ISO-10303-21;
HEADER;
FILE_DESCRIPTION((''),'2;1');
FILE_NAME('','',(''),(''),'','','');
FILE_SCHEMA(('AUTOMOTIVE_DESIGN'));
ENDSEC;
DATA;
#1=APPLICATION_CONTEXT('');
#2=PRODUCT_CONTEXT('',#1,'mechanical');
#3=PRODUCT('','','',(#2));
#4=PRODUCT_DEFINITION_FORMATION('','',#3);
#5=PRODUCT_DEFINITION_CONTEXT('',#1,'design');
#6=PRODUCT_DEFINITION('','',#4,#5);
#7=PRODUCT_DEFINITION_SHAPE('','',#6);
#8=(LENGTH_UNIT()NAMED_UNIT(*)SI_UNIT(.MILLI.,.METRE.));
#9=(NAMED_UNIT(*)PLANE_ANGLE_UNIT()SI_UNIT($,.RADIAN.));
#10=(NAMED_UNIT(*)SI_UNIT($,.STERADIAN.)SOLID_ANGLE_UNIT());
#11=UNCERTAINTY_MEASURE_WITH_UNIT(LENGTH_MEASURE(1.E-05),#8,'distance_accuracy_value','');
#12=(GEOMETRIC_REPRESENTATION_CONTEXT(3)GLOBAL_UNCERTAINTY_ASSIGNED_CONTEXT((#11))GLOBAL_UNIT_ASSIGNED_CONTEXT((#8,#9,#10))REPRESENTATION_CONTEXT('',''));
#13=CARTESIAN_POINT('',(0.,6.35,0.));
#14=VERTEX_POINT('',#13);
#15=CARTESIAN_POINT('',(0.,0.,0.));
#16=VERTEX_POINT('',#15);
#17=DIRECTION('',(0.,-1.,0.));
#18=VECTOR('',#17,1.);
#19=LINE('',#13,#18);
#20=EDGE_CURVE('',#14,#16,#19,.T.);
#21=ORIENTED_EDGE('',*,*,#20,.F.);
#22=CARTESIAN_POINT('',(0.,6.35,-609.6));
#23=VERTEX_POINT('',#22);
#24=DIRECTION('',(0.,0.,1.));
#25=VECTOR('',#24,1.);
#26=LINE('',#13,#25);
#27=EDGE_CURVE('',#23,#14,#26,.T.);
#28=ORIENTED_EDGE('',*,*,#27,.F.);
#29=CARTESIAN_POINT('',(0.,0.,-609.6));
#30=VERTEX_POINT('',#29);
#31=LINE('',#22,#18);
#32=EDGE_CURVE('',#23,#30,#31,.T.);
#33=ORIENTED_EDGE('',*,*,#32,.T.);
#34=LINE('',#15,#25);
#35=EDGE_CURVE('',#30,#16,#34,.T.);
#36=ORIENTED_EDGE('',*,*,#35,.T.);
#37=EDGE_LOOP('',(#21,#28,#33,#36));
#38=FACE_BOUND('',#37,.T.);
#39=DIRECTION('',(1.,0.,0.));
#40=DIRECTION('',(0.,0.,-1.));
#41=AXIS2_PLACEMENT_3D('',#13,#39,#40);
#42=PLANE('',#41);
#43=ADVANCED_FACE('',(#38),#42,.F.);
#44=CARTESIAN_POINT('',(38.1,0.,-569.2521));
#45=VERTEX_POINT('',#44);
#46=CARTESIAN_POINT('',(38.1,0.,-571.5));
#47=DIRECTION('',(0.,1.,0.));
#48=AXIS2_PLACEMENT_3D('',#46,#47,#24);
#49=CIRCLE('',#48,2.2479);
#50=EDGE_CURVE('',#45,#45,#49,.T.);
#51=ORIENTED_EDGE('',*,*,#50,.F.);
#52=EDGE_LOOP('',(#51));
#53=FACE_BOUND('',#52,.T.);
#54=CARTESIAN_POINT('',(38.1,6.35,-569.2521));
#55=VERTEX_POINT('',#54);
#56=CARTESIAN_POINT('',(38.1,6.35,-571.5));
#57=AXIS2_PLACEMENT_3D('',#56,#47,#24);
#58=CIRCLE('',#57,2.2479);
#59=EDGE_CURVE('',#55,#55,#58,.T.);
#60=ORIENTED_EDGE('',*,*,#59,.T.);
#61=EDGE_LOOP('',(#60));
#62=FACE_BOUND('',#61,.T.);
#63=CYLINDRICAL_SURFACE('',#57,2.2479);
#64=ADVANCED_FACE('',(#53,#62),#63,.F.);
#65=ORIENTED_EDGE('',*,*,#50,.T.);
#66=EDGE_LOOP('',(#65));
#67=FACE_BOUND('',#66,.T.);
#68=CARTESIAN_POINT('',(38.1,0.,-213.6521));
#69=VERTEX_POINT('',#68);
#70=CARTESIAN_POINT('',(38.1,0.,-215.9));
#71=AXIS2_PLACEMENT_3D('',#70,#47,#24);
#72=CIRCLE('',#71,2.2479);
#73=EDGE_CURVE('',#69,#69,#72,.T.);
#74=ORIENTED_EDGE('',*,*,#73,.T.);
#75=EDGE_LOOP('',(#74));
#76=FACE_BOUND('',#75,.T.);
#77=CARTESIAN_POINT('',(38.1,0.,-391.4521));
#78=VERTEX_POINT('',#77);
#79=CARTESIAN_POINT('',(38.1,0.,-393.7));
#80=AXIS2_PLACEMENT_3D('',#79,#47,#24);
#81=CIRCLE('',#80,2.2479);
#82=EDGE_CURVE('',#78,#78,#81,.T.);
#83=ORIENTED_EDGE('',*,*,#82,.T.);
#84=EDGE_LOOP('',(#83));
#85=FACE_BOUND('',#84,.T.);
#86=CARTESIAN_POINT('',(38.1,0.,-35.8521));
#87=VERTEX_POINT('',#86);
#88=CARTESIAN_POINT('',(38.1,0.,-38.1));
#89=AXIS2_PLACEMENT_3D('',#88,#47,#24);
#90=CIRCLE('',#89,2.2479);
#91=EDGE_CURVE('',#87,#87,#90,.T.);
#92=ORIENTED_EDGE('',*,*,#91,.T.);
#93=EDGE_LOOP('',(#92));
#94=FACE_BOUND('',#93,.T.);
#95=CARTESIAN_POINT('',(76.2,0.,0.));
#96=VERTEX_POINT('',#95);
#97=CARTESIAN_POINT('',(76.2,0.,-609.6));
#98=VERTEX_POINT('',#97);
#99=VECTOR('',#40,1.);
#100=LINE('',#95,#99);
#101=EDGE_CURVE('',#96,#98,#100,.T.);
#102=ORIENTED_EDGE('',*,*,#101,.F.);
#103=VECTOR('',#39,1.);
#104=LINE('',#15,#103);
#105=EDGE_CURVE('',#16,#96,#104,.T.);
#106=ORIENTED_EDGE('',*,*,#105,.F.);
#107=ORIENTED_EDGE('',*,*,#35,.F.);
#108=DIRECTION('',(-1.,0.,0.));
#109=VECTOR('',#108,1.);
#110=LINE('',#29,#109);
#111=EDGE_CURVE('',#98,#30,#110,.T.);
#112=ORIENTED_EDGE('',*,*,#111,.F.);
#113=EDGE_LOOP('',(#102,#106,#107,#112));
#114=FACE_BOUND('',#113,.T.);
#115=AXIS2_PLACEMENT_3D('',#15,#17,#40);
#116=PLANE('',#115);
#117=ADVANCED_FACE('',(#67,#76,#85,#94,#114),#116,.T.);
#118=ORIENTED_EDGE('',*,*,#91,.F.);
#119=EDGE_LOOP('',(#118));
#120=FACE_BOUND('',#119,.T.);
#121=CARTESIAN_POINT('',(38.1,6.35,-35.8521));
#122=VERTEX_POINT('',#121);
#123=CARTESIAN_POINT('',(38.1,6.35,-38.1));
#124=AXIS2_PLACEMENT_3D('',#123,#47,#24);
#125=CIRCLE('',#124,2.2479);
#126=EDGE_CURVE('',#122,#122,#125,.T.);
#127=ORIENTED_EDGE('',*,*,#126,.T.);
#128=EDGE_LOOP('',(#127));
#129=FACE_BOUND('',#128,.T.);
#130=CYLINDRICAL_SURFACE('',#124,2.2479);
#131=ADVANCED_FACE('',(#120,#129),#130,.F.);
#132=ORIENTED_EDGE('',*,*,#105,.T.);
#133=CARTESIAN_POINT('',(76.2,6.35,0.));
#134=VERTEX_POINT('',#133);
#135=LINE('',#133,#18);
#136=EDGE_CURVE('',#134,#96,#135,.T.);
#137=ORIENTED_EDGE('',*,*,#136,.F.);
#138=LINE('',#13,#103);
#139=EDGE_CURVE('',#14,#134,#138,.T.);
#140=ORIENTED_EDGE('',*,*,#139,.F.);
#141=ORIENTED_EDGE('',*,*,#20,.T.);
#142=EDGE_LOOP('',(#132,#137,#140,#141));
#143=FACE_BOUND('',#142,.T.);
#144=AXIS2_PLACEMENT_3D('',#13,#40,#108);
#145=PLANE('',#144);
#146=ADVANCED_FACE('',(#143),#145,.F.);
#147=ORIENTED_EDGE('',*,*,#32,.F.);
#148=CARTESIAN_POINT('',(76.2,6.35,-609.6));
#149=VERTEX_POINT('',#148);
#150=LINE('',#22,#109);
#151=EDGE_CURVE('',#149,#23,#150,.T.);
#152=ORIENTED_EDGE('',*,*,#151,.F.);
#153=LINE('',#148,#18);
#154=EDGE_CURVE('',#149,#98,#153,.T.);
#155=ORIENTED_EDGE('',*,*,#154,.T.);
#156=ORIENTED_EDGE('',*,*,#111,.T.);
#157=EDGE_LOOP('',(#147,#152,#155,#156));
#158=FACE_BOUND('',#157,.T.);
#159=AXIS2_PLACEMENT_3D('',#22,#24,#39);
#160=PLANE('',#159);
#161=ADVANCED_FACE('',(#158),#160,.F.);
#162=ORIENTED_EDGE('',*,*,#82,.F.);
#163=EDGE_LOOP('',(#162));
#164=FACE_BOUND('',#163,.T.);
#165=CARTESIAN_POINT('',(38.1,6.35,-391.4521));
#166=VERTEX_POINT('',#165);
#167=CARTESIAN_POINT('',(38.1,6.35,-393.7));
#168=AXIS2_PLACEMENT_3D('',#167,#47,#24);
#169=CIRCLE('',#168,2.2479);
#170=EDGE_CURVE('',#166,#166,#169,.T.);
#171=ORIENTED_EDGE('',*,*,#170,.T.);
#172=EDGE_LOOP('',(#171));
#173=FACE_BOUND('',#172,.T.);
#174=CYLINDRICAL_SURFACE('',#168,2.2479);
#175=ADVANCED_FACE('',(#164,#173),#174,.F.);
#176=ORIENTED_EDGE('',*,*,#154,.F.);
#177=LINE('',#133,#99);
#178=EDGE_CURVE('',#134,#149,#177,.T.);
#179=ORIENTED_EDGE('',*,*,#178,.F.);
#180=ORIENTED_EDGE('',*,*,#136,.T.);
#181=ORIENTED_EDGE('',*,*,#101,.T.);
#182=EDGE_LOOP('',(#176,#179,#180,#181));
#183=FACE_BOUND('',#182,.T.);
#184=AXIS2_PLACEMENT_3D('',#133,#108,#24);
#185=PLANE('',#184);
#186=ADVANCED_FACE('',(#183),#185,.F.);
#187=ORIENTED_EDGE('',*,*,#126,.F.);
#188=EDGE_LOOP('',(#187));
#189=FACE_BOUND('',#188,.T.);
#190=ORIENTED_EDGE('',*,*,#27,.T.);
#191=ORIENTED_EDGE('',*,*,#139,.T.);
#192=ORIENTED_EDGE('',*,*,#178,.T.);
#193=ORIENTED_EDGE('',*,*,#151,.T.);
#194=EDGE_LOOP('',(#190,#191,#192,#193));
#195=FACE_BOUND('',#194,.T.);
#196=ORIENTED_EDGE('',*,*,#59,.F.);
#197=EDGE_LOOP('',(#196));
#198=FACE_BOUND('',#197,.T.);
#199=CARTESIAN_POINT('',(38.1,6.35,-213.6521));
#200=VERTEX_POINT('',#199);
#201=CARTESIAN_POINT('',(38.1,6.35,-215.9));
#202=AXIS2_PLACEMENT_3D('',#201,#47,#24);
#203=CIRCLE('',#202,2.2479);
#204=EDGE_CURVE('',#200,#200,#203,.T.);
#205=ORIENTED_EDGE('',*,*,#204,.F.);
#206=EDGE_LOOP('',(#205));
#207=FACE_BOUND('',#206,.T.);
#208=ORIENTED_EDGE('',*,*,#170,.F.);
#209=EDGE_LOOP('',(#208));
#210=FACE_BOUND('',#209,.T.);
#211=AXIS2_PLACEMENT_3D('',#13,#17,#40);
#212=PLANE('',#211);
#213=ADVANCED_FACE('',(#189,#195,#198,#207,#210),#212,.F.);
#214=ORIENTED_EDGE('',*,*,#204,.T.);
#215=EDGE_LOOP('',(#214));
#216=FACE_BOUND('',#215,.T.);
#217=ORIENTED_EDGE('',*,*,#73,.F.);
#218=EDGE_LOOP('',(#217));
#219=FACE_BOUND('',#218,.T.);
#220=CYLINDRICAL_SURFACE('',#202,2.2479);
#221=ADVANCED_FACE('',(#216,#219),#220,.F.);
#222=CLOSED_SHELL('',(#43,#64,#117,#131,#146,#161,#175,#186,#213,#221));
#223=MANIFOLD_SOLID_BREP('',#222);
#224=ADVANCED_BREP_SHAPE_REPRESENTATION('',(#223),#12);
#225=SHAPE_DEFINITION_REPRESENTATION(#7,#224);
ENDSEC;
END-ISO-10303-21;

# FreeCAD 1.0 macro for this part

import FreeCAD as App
import Part
import Sketcher
from FreeCAD import Vector
Q = App.Units.Quantity

doc = App.newDocument("Part")
body = doc.addObject("PartDesign::Body", "Body")

# Sketch on XZ plane
sketch1 = body.newObject("Sketcher::SketchObject", "Sketch")
sketch1.AttachmentSupport = (doc.getObject("XZ_Plane"), [""])
sketch1.MapMode = "FlatFace"
sketch1.addGeometry(Part.LineSegment(Vector(0, -610, 0), Vector(0, 0, 0)), False)
sketch1.addGeometry(Part.LineSegment(Vector(0, 0, 0), Vector(76, 0, 0)), False)
sketch1.addGeometry(Part.LineSegment(Vector(76, 0, 0), Vector(76, -610, 0)), False)
sketch1.addGeometry(Part.LineSegment(Vector(76, -610, 0), Vector(0, -610, 0)), False)
sketch1.addConstraint(Sketcher.Constraint("Coincident", 0, 2, 1, 1))
sketch1.addConstraint(Sketcher.Constraint("Coincident", 1, 2, 2, 1))
sketch1.addConstraint(Sketcher.Constraint("Coincident", 2, 2, 3, 1))
sketch1.addConstraint(Sketcher.Constraint("Coincident", 3, 2, 0, 1))
sketch1.addConstraint(Sketcher.Constraint("Vertical", 0))
sketch1.addConstraint(Sketcher.Constraint("Horizontal", 1))
sketch1.addConstraint(Sketcher.Constraint("Vertical", 2))
sketch1.addConstraint(Sketcher.Constraint("Horizontal", 3))
sketch1.addConstraint(Sketcher.Constraint("Coincident", 0, 2, -1, 1))
sketch1.addConstraint(Sketcher.Constraint("DistanceX", 1, 1, 1, 2, Q("3 in")))
sketch1.addConstraint(Sketcher.Constraint("DistanceY", 0, 1, 0, 2, Q("24 in")))
pad1 = body.newObject("PartDesign::Pad", "Pad")
pad1.Profile = sketch1
pad1.Length = Q("0.25 in")
pad1.Reversed = True

# Sketch on XZ plane
sketch2 = body.newObject("Sketcher::SketchObject", "Sketch001")
sketch2.AttachmentSupport = (doc.getObject("XZ_Plane"), [""])
sketch2.MapMode = "FlatFace"
sketch2.AttachmentOffset = App.Placement(Vector(0, 0, -0.25 * 25.4), App.Rotation())
sketch2.addGeometry(Part.Circle(Vector(38.1, -38.1, 0), Vector(0, 0, 1), 2.2), False)
sketch2.addGeometry(Part.Circle(Vector(38.1, -215.9, 0), Vector(0, 0, 1), 2.2), False)
sketch2.addGeometry(Part.Circle(Vector(38.1, -393.7, 0), Vector(0, 0, 1), 2.2), False)
sketch2.addGeometry(Part.Circle(Vector(38.1, -571.5, 0), Vector(0, 0, 1), 2.2), False)
sketch2.addConstraint(Sketcher.Constraint("Equal", 0, 1))
sketch2.addConstraint(Sketcher.Constraint("Equal", 1, 2))
sketch2.addConstraint(Sketcher.Constraint("Equal", 2, 3))
sketch2.addConstraint(Sketcher.Constraint("Vertical", 0, 3, 1, 3))
sketch2.addConstraint(Sketcher.Constraint("Vertical", 1, 3, 2, 3))
sketch2.addConstraint(Sketcher.Constraint("Vertical", 2, 3, 3, 3))
sketch2.addConstraint(Sketcher.Constraint("Diameter", 0, Q("0.177 in")))
sketch2.addConstraint(Sketcher.Constraint("DistanceY", 1, 3, 0, 3, Q("7 in")))
sketch2.addConstraint(Sketcher.Constraint("DistanceY", 2, 3, 1, 3, Q("7 in")))
sketch2.addConstraint(Sketcher.Constraint("DistanceY", 3, 3, 2, 3, Q("7 in")))
sketch2.addConstraint(Sketcher.Constraint("DistanceX", -1, 1, 0, 3, Q("1.5 in")))
sketch2.addConstraint(Sketcher.Constraint("DistanceY", 0, 3, -1, 1, Q("1.5 in")))
doc.recompute()
hole = body.newObject("PartDesign::Hole", "Hole")
hole.Profile = sketch2
hole.ThreadType = "None"
hole.Diameter = Q("0.177 in")
hole.DepthType = "ThroughAll"
hole.Reversed = True

doc.recompute()
